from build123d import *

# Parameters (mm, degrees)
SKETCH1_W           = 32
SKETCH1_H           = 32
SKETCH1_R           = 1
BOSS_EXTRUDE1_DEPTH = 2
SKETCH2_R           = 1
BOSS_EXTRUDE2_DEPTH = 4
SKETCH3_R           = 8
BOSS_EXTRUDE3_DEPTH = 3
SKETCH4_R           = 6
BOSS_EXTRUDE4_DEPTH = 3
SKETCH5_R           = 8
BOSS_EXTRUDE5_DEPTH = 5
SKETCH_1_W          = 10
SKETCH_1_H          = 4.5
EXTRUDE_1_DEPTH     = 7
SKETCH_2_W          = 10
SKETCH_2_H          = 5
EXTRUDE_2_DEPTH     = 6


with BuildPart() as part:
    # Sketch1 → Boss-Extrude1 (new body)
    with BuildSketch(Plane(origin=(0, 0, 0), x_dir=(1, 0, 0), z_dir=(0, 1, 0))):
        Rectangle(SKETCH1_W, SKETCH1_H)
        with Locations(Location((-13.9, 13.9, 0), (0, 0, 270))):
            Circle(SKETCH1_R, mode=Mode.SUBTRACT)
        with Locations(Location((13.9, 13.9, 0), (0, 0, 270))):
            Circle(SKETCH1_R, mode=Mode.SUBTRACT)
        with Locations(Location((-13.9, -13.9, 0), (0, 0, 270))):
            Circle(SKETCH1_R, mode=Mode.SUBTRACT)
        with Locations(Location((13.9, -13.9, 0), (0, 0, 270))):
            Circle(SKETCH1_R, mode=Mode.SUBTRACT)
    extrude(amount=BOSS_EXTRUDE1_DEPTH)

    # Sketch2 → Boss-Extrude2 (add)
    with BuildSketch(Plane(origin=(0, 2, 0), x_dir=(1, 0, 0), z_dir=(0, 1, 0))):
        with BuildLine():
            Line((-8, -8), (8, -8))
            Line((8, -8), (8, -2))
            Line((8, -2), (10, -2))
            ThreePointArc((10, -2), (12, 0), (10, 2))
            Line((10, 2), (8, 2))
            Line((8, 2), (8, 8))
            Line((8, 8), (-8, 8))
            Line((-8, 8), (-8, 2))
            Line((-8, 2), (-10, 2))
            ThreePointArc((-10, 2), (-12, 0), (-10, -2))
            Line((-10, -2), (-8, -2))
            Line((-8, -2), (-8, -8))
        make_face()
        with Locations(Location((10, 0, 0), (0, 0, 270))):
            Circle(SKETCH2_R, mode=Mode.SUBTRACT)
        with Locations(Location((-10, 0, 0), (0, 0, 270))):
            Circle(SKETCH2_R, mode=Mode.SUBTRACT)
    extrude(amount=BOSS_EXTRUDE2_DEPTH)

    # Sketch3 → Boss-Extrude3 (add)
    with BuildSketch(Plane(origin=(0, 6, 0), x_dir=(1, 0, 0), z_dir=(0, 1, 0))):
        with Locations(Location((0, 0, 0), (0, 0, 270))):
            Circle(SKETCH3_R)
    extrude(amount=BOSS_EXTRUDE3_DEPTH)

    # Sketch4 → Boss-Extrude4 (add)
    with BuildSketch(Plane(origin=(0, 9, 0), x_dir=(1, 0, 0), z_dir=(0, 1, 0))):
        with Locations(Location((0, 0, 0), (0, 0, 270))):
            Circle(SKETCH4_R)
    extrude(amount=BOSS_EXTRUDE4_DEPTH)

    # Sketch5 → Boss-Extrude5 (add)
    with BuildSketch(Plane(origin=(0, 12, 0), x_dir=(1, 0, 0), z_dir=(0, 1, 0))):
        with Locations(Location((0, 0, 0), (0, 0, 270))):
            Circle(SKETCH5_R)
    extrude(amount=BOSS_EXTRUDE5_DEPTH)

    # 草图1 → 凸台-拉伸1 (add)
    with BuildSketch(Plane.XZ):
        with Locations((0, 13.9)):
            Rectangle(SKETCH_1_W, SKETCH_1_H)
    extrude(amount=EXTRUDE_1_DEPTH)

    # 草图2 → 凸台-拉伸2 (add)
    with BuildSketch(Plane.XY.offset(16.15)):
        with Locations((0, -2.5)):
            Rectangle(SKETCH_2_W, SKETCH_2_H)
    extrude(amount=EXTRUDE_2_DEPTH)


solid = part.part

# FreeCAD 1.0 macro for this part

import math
import FreeCAD as App
import Part
import Sketcher
from FreeCAD import Vector
Q = App.Units.Quantity

doc = App.newDocument("Part")
body = doc.addObject("PartDesign::Body", "Body")

sketch1 = body.newObject("Sketcher::SketchObject", "Sketch")
sketch1.AttachmentSupport = (doc.getObject("XZ_Plane"), [""])
sketch1.MapMode = "FlatFace"
sketch1.addGeometry(Part.LineSegment(Vector(-16, -16, 0), Vector(-16, 16, 0)), False)
sketch1.addGeometry(Part.LineSegment(Vector(-16, 16, 0), Vector(16, 16, 0)), False)
sketch1.addGeometry(Part.LineSegment(Vector(16, 16, 0), Vector(16, -16, 0)), False)
sketch1.addGeometry(Part.LineSegment(Vector(16, -16, 0), Vector(-16, -16, 0)), False)
sketch1.addGeometry(Part.Circle(Vector(-13.9, 13.9, 0), Vector(0, 0, 1), 1), False)
sketch1.addGeometry(Part.Circle(Vector(13.9, 13.9, 0), Vector(0, 0, 1), 1), False)
sketch1.addGeometry(Part.Circle(Vector(-13.9, -13.9, 0), Vector(0, 0, 1), 1), False)
sketch1.addGeometry(Part.Circle(Vector(13.9, -13.9, 0), Vector(0, 0, 1), 1), False)
sketch1.addConstraint(Sketcher.Constraint("Coincident", 0, 2, 1, 1))
sketch1.addConstraint(Sketcher.Constraint("Coincident", 1, 2, 2, 1))
sketch1.addConstraint(Sketcher.Constraint("Coincident", 2, 2, 3, 1))
sketch1.addConstraint(Sketcher.Constraint("Coincident", 3, 2, 0, 1))
sketch1.addConstraint(Sketcher.Constraint("Vertical", 0))
sketch1.addConstraint(Sketcher.Constraint("Horizontal", 1))
sketch1.addConstraint(Sketcher.Constraint("Vertical", 2))
sketch1.addConstraint(Sketcher.Constraint("Horizontal", 3))
sketch1.addConstraint(Sketcher.Constraint("Equal", 4, 5))
sketch1.addConstraint(Sketcher.Constraint("Equal", 5, 6))
sketch1.addConstraint(Sketcher.Constraint("Equal", 6, 7))
sketch1.addConstraint(Sketcher.Constraint("Symmetric", 5, 3, 6, 3, -1, 1))
sketch1.addConstraint(Sketcher.Constraint("Symmetric", 4, 3, 7, 3, -1, 1))
sketch1.addConstraint(Sketcher.Constraint("Symmetric", 0, 2, 2, 2, -1, 1))
sketch1.addConstraint(Sketcher.Constraint("Symmetric", 4, 3, 5, 3, -2))
sketch1.addConstraint(Sketcher.Constraint("Equal", 3, 0))
sketch1.addConstraint(Sketcher.Constraint("Diameter", 4, Q("2 mm")))
sketch1.addConstraint(Sketcher.Constraint("DistanceX", 1, 1, 1, 2, Q("32 mm")))
sketch1.addConstraint(Sketcher.Constraint("DistanceX", 4, 3, -1, 1, Q("13.9 mm")))
sketch1.addConstraint(Sketcher.Constraint("DistanceY", -1, 1, 4, 3, Q("13.9 mm")))
pad1 = body.newObject("PartDesign::Pad", "Pad")
pad1.Profile = sketch1
pad1.Length = 2
pad1.Reversed = True

sketch2 = body.newObject("Sketcher::SketchObject", "Sketch001")
sketch2.AttachmentSupport = (doc.getObject("XZ_Plane"), [""])
sketch2.MapMode = "FlatFace"
sketch2.AttachmentOffset = App.Placement(Vector(0, 0, -2), App.Rotation())
sketch2.addGeometry(Part.LineSegment(Vector(-8, 8, 0), Vector(8, 8, 0)), False)
sketch2.addGeometry(Part.LineSegment(Vector(8, 8, 0), Vector(8, 2, 0)), False)
sketch2.addGeometry(Part.LineSegment(Vector(8, 2, 0), Vector(10, 2, 0)), False)
sketch2.addGeometry(Part.ArcOfCircle(Part.Circle(Vector(10, 0, 0), Vector(0, 0, 1), 2), math.radians(-90), math.radians(90)), False)
sketch2.addGeometry(Part.LineSegment(Vector(10, -2, 0), Vector(8, -2, 0)), False)
sketch2.addGeometry(Part.LineSegment(Vector(8, -2, 0), Vector(8, -8, 0)), False)
sketch2.addGeometry(Part.LineSegment(Vector(8, -8, 0), Vector(-8, -8, 0)), False)
sketch2.addGeometry(Part.LineSegment(Vector(-8, -8, 0), Vector(-8, -2, 0)), False)
sketch2.addGeometry(Part.LineSegment(Vector(-8, -2, 0), Vector(-10, -2, 0)), False)
sketch2.addGeometry(Part.ArcOfCircle(Part.Circle(Vector(-10, 0, 0), Vector(0, 0, 1), 2), math.radians(90), math.radians(270)), False)
sketch2.addGeometry(Part.LineSegment(Vector(-10, 2, 0), Vector(-8, 2, 0)), False)
sketch2.addGeometry(Part.LineSegment(Vector(-8, 2, 0), Vector(-8, 8, 0)), False)
sketch2.addGeometry(Part.Circle(Vector(-10, 0, 0), Vector(0, 0, 1), 1), False)
sketch2.addGeometry(Part.Circle(Vector(10, 0, 0), Vector(0, 0, 1), 1), False)
sketch2.addConstraint(Sketcher.Constraint("Coincident", 0, 2, 1, 1))
sketch2.addConstraint(Sketcher.Constraint("Coincident", 1, 2, 2, 1))
sketch2.addConstraint(Sketcher.Constraint("Tangent", 2, 2, 3, 2))
sketch2.addConstraint(Sketcher.Constraint("Tangent", 3, 1, 4, 1))
sketch2.addConstraint(Sketcher.Constraint("Coincident", 4, 2, 5, 1))
sketch2.addConstraint(Sketcher.Constraint("Coincident", 5, 2, 6, 1))
sketch2.addConstraint(Sketcher.Constraint("Coincident", 6, 2, 7, 1))
sketch2.addConstraint(Sketcher.Constraint("Coincident", 7, 2, 8, 1))
sketch2.addConstraint(Sketcher.Constraint("Tangent", 8, 2, 9, 2))
sketch2.addConstraint(Sketcher.Constraint("Tangent", 9, 1, 10, 1))
sketch2.addConstraint(Sketcher.Constraint("Coincident", 10, 2, 11, 1))
sketch2.addConstraint(Sketcher.Constraint("Coincident", 11, 2, 0, 1))
sketch2.addConstraint(Sketcher.Constraint("Horizontal", 0))
sketch2.addConstraint(Sketcher.Constraint("Vertical", 1))
sketch2.addConstraint(Sketcher.Constraint("Horizontal", 2))
sketch2.addConstraint(Sketcher.Constraint("Horizontal", 4))
sketch2.addConstraint(Sketcher.Constraint("Vertical", 5))
sketch2.addConstraint(Sketcher.Constraint("Horizontal", 6))
sketch2.addConstraint(Sketcher.Constraint("Vertical", 7))
sketch2.addConstraint(Sketcher.Constraint("Horizontal", 8))
sketch2.addConstraint(Sketcher.Constraint("Horizontal", 10))
sketch2.addConstraint(Sketcher.Constraint("Vertical", 11))
sketch2.addConstraint(Sketcher.Constraint("Coincident", 12, 3, 9, 3))
sketch2.addConstraint(Sketcher.Constraint("Coincident", 13, 3, 3, 3))
sketch2.addConstraint(Sketcher.Constraint("Equal", 3, 9))
sketch2.addConstraint(Sketcher.Constraint("Equal", 12, 13))
sketch2.addConstraint(Sketcher.Constraint("Symmetric", 3, 3, 9, 3, -1, 1))
sketch2.addConstraint(Sketcher.Constraint("Symmetric", 0, 2, 6, 2, -1, 1))
sketch2.addConstraint(Sketcher.Constraint("Symmetric", 4, 2, 7, 2, -2))
sketch2.addConstraint(Sketcher.Constraint("Vertical", 7, 2, 10, 2))
sketch2.addConstraint(Sketcher.Constraint("Diameter", 12, Q("2 mm")))
sketch2.addConstraint(Sketcher.Constraint("Radius", 3, Q("2 mm")))
sketch2.addConstraint(Sketcher.Constraint("DistanceX", 0, 1, 0, 2, Q("16 mm")))
sketch2.addConstraint(Sketcher.Constraint("DistanceX", 2, 1, 2, 2, Q("2 mm")))
sketch2.addConstraint(Sketcher.Constraint("DistanceY", 1, 2, 1, 1, Q("6 mm")))
pad2 = body.newObject("PartDesign::Pad", "Pad001")
pad2.Profile = sketch2
pad2.Length = 4
pad2.Reversed = True

sketch3 = body.newObject("Sketcher::SketchObject", "Sketch002")
sketch3.AttachmentSupport = (doc.getObject("XZ_Plane"), [""])
sketch3.MapMode = "FlatFace"
sketch3.AttachmentOffset = App.Placement(Vector(0, 0, -6), App.Rotation())
sketch3.addGeometry(Part.Circle(Vector(0, 0, 0), Vector(0, 0, 1), 8), False)
sketch3.addConstraint(Sketcher.Constraint("Coincident", 0, 3, -1, 1))
sketch3.addConstraint(Sketcher.Constraint("Diameter", 0, Q("16 mm")))
pad3 = body.newObject("PartDesign::Pad", "Pad002")
pad3.Profile = sketch3
pad3.Length = 3
pad3.Reversed = True

sketch4 = body.newObject("Sketcher::SketchObject", "Sketch003")
sketch4.AttachmentSupport = (doc.getObject("XZ_Plane"), [""])
sketch4.MapMode = "FlatFace"
sketch4.AttachmentOffset = App.Placement(Vector(0, 0, -9), App.Rotation())
sketch4.addGeometry(Part.Circle(Vector(0, 0, 0), Vector(0, 0, 1), 6), False)
sketch4.addConstraint(Sketcher.Constraint("Coincident", 0, 3, -1, 1))
sketch4.addConstraint(Sketcher.Constraint("Diameter", 0, Q("12 mm")))
pad4 = body.newObject("PartDesign::Pad", "Pad003")
pad4.Profile = sketch4
pad4.Length = 3
pad4.Reversed = True

sketch5 = body.newObject("Sketcher::SketchObject", "Sketch004")
sketch5.AttachmentSupport = (doc.getObject("XZ_Plane"), [""])
sketch5.MapMode = "FlatFace"
sketch5.AttachmentOffset = App.Placement(Vector(0, 0, -12), App.Rotation())
sketch5.addGeometry(Part.Circle(Vector(0, 0, 0), Vector(0, 0, 1), 8), False)
sketch5.addConstraint(Sketcher.Constraint("Coincident", 0, 3, -1, 1))
sketch5.addConstraint(Sketcher.Constraint("Diameter", 0, Q("16 mm")))
pad5 = body.newObject("PartDesign::Pad", "Pad004")
pad5.Profile = sketch5
pad5.Length = 5
pad5.Reversed = True

sketch6 = body.newObject("Sketcher::SketchObject", "Sketch005")
sketch6.AttachmentSupport = (doc.getObject("XZ_Plane"), [""])
sketch6.MapMode = "FlatFace"
sketch6.addGeometry(Part.LineSegment(Vector(-5, 16.1, 0), Vector(-5, 11.7, 0)), False)
sketch6.addGeometry(Part.LineSegment(Vector(-5, 11.7, 0), Vector(5, 11.7, 0)), False)
sketch6.addGeometry(Part.LineSegment(Vector(5, 11.7, 0), Vector(5, 16.1, 0)), False)
sketch6.addGeometry(Part.LineSegment(Vector(5, 16.1, 0), Vector(-5, 16.1, 0)), False)
sketch6.addConstraint(Sketcher.Constraint("Coincident", 0, 2, 1, 1))
sketch6.addConstraint(Sketcher.Constraint("Coincident", 1, 2, 2, 1))
sketch6.addConstraint(Sketcher.Constraint("Coincident", 2, 2, 3, 1))
sketch6.addConstraint(Sketcher.Constraint("Coincident", 3, 2, 0, 1))
sketch6.addConstraint(Sketcher.Constraint("Vertical", 0))
sketch6.addConstraint(Sketcher.Constraint("Horizontal", 1))
sketch6.addConstraint(Sketcher.Constraint("Vertical", 2))
sketch6.addConstraint(Sketcher.Constraint("Horizontal", 3))
sketch6.addConstraint(Sketcher.Constraint("DistanceX", 1, 1, 1, 2, Q("10 mm")))
sketch6.addConstraint(Sketcher.Constraint("DistanceY", 0, 2, 0, 1, Q("4.5 mm")))
sketch6.addConstraint(Sketcher.Constraint("DistanceX", 0, 2, -1, 1, Q("5 mm")))
sketch6.addConstraint(Sketcher.Constraint("DistanceY", -1, 1, 0, 2, Q("11.65 mm")))
pad6 = body.newObject("PartDesign::Pad", "Pad005")
pad6.Profile = sketch6
pad6.Length = 7

sketch7 = body.newObject("Sketcher::SketchObject", "Sketch006")
sketch7.AttachmentSupport = (doc.getObject("XY_Plane"), [""])
sketch7.MapMode = "FlatFace"
sketch7.AttachmentOffset = App.Placement(Vector(0, 0, 16.15), App.Rotation())
sketch7.addGeometry(Part.LineSegment(Vector(-5, 0, 0), Vector(-5, -5, 0)), False)
sketch7.addGeometry(Part.LineSegment(Vector(-5, -5, 0), Vector(5, -5, 0)), False)
sketch7.addGeometry(Part.LineSegment(Vector(5, -5, 0), Vector(5, 0, 0)), False)
sketch7.addGeometry(Part.LineSegment(Vector(5, 0, 0), Vector(-5, 0, 0)), False)
sketch7.addConstraint(Sketcher.Constraint("Coincident", 0, 2, 1, 1))
sketch7.addConstraint(Sketcher.Constraint("Coincident", 1, 2, 2, 1))
sketch7.addConstraint(Sketcher.Constraint("Coincident", 2, 2, 3, 1))
sketch7.addConstraint(Sketcher.Constraint("Coincident", 3, 2, 0, 1))
sketch7.addConstraint(Sketcher.Constraint("Vertical", 0))
sketch7.addConstraint(Sketcher.Constraint("Horizontal", 1))
sketch7.addConstraint(Sketcher.Constraint("Vertical", 2))
sketch7.addConstraint(Sketcher.Constraint("Horizontal", 3))
sketch7.addConstraint(Sketcher.Constraint("Symmetric", 2, 2, 3, 2, -1, 1))
sketch7.addConstraint(Sketcher.Constraint("DistanceX", 1, 1, 1, 2, Q("10 mm")))
sketch7.addConstraint(Sketcher.Constraint("DistanceY", 0, 2, 0, 1, Q("5 mm")))
pad7 = body.newObject("PartDesign::Pad", "Pad006")
pad7.Profile = sketch7
pad7.Length = 6

doc.recompute()
